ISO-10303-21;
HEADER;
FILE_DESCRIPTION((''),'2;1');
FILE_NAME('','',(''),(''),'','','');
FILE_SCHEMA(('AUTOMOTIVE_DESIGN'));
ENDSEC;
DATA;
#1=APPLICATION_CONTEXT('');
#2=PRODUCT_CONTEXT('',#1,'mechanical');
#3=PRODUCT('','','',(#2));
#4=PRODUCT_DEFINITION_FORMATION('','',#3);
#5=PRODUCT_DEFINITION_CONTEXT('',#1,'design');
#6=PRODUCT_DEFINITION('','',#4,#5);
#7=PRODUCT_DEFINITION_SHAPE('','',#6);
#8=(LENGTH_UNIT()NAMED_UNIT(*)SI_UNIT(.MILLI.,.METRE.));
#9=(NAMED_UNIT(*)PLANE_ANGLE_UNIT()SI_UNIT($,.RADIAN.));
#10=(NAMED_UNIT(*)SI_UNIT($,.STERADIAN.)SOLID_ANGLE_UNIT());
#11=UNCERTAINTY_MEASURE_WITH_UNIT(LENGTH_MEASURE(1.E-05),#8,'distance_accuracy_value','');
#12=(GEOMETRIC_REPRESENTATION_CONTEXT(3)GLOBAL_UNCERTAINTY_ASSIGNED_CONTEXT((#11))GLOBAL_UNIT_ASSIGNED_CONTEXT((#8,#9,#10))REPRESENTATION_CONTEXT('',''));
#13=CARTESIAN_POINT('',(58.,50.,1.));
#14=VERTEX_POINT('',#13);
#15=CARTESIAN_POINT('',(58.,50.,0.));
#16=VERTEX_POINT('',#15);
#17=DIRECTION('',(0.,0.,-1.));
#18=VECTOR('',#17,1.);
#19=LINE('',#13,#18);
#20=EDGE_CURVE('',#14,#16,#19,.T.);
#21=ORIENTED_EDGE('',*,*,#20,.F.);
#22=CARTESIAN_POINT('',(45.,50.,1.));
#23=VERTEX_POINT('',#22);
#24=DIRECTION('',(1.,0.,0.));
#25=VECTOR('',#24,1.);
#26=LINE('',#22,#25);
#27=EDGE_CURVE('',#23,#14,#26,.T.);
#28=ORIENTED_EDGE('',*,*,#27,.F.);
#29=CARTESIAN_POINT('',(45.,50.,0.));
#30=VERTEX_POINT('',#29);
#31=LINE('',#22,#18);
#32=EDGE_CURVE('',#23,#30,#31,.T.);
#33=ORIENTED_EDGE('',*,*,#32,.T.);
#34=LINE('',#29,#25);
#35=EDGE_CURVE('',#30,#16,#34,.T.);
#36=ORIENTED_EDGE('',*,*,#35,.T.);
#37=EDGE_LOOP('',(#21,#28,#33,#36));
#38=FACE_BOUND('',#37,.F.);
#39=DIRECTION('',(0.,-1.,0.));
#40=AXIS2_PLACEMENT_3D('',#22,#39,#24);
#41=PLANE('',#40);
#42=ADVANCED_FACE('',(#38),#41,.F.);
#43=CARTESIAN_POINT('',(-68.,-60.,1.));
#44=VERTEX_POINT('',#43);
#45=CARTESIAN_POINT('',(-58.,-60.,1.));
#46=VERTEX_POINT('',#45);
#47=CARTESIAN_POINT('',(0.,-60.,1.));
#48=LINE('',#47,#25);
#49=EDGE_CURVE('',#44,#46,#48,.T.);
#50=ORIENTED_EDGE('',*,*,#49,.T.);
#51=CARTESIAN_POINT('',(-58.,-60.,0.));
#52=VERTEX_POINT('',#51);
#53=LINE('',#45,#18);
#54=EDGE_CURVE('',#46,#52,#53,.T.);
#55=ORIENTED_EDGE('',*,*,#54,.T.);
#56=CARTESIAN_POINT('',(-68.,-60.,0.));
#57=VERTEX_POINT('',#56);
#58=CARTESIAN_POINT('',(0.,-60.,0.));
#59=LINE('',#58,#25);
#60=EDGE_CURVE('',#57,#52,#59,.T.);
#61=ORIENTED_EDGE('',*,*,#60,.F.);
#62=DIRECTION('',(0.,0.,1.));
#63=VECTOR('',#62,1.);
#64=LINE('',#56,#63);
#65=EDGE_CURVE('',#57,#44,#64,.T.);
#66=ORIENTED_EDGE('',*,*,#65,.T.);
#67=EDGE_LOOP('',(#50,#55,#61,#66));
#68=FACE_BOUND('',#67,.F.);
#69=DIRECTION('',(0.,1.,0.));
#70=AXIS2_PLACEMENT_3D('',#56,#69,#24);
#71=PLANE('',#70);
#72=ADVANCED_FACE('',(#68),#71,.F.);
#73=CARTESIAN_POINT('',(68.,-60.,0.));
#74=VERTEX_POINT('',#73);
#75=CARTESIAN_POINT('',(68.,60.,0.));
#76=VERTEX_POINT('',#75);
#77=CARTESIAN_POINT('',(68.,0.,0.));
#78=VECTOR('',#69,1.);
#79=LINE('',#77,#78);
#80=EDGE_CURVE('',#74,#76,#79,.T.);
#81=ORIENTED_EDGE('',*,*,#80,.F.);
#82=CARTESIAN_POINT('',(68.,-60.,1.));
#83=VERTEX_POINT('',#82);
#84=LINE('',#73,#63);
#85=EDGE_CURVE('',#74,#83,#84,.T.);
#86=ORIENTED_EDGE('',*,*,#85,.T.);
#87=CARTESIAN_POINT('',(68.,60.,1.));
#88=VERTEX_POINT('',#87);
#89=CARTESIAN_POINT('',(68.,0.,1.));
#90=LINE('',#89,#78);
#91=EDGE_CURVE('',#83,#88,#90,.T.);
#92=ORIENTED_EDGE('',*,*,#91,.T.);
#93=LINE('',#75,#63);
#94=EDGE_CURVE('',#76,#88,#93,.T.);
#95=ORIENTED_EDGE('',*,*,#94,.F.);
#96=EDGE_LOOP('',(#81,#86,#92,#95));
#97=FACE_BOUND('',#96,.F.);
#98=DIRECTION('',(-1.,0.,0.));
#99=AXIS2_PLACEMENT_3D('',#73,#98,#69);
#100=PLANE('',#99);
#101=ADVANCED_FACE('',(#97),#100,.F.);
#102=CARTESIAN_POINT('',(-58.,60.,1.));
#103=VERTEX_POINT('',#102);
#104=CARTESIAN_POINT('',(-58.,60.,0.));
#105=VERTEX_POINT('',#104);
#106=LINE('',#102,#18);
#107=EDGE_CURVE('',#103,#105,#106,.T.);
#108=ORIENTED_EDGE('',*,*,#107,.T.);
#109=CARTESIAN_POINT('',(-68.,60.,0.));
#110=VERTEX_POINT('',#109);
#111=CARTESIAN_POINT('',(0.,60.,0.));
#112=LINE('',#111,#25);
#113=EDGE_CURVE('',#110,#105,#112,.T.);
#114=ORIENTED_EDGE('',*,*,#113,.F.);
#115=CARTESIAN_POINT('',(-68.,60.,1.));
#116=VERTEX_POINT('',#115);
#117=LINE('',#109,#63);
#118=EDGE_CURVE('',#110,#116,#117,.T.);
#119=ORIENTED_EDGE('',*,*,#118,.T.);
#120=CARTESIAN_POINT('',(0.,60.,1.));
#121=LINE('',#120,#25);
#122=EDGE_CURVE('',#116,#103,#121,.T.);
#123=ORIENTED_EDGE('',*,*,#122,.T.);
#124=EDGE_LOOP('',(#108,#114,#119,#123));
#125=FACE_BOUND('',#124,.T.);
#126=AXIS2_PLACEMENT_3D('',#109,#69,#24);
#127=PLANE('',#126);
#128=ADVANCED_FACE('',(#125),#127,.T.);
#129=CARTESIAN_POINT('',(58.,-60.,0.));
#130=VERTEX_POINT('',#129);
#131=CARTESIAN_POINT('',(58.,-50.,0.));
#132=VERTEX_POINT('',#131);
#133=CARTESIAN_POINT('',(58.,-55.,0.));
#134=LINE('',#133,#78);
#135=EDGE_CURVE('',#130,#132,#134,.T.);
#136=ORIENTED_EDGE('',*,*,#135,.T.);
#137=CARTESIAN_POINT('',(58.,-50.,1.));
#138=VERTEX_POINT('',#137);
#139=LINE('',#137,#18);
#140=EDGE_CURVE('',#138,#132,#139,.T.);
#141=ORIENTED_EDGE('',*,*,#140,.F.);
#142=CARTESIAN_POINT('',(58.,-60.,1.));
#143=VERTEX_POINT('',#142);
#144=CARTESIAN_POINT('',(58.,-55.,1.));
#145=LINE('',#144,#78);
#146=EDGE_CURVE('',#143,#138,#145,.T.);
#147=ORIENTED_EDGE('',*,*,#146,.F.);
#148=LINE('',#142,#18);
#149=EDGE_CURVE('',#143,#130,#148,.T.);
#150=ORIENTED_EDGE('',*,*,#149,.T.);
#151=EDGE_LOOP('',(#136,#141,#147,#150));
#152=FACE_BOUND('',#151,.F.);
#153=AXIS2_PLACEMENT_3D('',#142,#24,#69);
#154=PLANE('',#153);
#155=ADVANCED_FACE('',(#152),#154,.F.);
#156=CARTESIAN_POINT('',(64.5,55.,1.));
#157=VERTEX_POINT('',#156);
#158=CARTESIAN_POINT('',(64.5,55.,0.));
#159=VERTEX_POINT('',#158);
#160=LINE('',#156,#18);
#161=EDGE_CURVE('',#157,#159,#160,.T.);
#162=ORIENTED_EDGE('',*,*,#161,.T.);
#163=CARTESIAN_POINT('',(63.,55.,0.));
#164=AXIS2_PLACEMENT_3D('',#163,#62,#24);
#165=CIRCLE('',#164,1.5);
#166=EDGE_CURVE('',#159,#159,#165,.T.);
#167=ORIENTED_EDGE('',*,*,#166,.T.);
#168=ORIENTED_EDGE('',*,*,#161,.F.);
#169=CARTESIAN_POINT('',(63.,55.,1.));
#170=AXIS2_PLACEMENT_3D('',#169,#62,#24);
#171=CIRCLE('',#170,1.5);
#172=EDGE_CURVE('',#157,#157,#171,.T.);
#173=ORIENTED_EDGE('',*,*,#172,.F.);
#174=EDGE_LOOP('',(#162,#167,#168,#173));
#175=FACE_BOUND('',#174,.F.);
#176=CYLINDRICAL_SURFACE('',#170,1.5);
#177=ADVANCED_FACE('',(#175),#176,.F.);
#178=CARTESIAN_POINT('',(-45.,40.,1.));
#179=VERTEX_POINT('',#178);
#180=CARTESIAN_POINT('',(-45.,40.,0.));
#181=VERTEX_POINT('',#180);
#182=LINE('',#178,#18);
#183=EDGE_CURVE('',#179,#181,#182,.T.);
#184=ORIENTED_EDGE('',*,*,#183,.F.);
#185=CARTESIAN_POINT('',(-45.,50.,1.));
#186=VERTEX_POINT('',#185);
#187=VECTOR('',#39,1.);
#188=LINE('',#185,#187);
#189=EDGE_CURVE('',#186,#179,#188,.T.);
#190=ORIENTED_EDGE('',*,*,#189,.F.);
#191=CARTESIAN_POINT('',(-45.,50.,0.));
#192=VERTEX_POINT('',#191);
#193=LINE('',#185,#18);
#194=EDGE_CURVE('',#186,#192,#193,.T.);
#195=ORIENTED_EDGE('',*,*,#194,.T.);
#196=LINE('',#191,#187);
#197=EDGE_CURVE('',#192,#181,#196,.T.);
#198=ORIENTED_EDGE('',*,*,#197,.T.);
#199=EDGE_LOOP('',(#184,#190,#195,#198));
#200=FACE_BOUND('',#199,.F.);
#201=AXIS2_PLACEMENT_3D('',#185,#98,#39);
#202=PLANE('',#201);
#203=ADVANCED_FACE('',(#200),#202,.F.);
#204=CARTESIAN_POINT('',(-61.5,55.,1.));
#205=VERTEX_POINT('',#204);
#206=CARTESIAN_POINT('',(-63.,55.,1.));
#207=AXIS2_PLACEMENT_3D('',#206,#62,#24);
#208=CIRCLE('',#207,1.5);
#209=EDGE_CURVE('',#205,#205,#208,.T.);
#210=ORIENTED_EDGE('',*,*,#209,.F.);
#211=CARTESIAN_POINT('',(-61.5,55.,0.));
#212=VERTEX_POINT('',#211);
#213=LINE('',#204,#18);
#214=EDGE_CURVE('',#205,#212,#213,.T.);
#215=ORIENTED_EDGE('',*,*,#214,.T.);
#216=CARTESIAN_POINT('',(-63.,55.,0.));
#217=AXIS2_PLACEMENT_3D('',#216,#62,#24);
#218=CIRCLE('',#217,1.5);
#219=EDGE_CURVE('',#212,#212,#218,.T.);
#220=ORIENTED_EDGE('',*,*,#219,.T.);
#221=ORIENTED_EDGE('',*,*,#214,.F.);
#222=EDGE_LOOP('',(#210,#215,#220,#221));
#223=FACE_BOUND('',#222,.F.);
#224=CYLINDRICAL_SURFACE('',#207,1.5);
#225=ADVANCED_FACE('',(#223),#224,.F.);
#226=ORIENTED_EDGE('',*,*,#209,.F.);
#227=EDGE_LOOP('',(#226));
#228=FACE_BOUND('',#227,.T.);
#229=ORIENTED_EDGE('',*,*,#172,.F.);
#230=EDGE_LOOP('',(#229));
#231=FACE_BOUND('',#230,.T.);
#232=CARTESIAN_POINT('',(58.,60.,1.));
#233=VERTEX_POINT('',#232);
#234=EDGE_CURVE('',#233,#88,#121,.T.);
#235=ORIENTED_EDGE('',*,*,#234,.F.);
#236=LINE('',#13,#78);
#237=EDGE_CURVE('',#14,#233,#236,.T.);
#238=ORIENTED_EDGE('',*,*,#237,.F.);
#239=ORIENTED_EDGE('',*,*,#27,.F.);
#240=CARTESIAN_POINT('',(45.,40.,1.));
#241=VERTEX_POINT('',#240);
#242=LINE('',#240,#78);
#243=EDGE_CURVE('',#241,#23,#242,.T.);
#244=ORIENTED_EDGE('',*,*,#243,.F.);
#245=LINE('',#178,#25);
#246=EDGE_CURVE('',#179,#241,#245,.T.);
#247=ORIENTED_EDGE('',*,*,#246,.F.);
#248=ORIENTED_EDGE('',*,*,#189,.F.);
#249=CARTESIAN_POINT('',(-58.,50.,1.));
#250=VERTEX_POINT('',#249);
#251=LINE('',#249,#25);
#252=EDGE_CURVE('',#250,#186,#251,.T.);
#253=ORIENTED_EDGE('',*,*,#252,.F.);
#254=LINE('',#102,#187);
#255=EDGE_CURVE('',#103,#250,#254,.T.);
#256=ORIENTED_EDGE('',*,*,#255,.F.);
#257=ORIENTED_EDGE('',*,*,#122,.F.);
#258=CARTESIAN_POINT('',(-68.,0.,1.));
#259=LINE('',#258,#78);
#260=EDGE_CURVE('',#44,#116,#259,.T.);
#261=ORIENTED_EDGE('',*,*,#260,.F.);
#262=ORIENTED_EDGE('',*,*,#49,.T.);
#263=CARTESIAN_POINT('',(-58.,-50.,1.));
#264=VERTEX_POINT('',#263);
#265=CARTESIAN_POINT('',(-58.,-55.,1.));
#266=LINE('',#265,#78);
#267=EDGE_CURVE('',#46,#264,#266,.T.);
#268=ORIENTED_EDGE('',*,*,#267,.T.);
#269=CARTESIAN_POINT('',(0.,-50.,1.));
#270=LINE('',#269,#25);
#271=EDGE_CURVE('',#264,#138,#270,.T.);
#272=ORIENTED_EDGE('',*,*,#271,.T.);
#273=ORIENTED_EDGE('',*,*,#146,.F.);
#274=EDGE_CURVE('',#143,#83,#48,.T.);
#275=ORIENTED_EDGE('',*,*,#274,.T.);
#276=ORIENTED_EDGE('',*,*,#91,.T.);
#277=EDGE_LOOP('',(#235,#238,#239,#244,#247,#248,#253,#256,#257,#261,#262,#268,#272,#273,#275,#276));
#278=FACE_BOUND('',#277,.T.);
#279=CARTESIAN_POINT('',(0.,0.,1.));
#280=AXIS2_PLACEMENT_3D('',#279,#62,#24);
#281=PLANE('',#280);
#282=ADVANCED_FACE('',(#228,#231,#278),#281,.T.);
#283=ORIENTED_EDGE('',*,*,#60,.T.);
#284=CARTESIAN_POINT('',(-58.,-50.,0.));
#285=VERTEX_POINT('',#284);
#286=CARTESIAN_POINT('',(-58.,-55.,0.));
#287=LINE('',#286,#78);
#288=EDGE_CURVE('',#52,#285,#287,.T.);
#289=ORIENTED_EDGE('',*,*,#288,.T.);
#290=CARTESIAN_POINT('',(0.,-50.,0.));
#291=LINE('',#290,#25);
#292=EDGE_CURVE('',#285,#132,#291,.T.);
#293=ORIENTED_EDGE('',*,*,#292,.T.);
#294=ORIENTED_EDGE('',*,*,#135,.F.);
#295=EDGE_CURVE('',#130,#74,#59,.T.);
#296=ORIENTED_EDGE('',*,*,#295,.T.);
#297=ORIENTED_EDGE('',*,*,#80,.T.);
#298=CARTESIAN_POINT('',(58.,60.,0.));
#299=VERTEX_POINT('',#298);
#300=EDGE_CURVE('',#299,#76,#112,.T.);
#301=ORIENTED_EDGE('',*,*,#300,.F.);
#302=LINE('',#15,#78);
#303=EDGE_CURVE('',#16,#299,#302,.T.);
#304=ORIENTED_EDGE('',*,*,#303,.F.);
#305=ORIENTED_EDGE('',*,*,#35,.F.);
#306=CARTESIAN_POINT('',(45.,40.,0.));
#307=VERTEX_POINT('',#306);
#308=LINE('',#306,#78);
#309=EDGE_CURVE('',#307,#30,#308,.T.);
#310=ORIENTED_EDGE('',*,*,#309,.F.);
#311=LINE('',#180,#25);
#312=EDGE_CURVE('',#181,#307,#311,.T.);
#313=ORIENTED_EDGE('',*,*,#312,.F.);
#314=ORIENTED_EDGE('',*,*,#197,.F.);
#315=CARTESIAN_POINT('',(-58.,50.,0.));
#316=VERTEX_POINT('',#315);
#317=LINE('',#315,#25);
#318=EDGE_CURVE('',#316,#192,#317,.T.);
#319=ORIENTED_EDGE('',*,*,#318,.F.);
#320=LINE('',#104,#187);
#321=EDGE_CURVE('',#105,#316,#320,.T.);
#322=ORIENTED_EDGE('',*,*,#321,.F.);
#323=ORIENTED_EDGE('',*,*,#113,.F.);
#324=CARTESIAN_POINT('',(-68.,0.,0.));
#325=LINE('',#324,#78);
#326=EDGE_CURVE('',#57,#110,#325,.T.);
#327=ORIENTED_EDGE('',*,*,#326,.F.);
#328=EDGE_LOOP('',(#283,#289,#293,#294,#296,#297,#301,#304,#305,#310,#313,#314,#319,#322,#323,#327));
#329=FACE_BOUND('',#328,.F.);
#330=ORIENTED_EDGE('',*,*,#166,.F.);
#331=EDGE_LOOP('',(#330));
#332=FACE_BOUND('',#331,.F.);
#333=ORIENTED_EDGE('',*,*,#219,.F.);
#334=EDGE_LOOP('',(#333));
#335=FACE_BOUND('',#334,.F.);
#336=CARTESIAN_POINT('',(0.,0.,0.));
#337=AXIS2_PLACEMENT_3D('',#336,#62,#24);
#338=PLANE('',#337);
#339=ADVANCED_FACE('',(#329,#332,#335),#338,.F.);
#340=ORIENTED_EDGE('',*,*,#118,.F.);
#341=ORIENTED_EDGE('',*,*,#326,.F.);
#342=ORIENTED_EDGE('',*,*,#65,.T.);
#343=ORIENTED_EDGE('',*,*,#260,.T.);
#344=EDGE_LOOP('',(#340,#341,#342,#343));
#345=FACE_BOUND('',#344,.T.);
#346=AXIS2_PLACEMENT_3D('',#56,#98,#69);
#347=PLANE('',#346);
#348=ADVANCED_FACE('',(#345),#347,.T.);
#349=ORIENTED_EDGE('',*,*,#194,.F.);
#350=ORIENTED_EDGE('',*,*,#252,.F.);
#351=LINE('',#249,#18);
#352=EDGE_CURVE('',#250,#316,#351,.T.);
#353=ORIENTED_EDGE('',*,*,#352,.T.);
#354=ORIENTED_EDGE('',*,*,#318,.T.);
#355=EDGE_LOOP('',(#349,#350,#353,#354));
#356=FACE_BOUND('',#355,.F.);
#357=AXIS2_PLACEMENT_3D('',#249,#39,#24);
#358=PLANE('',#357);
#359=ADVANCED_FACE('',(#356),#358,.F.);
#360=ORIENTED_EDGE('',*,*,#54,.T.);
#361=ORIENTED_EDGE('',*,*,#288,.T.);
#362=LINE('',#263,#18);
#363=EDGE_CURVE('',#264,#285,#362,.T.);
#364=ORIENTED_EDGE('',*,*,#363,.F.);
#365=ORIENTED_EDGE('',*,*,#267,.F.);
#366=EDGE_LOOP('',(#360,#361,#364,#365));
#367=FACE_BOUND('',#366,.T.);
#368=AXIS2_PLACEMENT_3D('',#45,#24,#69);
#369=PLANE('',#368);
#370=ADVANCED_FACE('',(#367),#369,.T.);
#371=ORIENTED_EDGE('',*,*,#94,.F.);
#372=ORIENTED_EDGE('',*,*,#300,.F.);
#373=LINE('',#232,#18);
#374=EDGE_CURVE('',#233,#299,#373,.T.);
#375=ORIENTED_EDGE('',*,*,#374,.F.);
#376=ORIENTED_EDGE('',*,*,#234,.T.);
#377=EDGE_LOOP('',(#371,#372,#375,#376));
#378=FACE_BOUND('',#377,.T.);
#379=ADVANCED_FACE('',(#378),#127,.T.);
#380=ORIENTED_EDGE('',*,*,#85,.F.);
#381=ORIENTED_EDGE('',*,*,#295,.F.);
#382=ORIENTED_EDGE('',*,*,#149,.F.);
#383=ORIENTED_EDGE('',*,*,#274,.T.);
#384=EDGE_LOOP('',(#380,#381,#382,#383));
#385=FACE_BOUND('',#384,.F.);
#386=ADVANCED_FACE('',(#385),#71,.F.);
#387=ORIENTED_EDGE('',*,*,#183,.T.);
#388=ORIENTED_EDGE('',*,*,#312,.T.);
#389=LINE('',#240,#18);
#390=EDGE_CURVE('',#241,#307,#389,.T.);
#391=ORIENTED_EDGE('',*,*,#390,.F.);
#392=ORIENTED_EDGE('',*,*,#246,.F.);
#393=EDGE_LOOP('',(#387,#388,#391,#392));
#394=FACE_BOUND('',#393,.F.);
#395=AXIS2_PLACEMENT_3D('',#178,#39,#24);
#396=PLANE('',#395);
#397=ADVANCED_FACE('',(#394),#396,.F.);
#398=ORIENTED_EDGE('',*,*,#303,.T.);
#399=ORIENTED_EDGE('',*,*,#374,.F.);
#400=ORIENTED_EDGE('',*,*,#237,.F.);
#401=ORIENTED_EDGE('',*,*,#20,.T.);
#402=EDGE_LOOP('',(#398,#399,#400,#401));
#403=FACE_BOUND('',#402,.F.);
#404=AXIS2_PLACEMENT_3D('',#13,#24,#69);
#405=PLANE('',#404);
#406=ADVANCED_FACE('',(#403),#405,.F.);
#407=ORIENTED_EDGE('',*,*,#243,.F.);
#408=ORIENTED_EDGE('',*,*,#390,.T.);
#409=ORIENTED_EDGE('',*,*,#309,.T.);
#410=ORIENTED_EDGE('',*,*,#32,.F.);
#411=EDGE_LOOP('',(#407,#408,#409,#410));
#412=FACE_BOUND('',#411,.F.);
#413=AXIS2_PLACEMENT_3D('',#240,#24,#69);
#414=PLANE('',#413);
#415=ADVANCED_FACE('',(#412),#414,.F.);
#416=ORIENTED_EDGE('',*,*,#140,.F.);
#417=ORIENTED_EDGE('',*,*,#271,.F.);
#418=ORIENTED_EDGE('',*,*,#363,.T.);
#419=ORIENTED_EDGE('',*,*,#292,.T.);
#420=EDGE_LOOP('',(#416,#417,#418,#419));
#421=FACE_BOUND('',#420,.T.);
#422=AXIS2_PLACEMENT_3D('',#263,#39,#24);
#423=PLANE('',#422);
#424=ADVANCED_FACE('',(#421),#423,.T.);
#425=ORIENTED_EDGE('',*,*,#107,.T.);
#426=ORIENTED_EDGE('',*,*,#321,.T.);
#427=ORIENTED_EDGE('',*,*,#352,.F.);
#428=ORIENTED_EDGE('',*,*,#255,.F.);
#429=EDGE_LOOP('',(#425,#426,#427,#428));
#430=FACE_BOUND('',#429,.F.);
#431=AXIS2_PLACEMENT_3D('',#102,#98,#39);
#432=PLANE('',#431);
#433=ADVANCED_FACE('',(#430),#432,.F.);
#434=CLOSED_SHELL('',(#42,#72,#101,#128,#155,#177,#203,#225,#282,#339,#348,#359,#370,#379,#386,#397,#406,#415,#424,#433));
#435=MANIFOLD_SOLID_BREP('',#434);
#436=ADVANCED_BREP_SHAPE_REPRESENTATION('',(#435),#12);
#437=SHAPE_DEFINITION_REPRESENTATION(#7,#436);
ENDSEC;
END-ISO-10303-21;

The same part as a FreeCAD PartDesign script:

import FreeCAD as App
import Part
import Sketcher
from FreeCAD import Vector

doc = App.newDocument("Part")
body = doc.addObject("PartDesign::Body", "Body")

sketch1 = body.newObject("Sketcher::SketchObject", "Sketch")
sketch1.AttachmentSupport = (doc.getObject("XY_Plane"), [""])
sketch1.MapMode = "FlatFace"
sketch1.addGeometry([
    Part.LineSegment(Vector(-68, 60, 0), Vector(-68, -60, 0)),
    Part.LineSegment(Vector(-68, -60, 0), Vector(68, -60, 0)),
    Part.LineSegment(Vector(68, -60, 0), Vector(68, 60, 0)),
    Part.LineSegment(Vector(68, 60, 0), Vector(-68, 60, 0)),
], False)
sketch1.addConstraint([
    Sketcher.Constraint("Coincident", 0, 2, 1, 1),
    Sketcher.Constraint("Coincident", 1, 2, 2, 1),
    Sketcher.Constraint("Coincident", 2, 2, 3, 1),
    Sketcher.Constraint("Coincident", 3, 2, 0, 1),
    Sketcher.Constraint("Vertical", 0),
    Sketcher.Constraint("Horizontal", 1),
    Sketcher.Constraint("Vertical", 2),
    Sketcher.Constraint("Horizontal", 3),
    Sketcher.Constraint("Symmetric", 0, 2, 2, 2, -1, 1),
    Sketcher.Constraint("DistanceX", 1, 1, 1, 2, 136.0),
    Sketcher.Constraint("DistanceY", 0, 2, 0, 1, 120.0),
])
pad1 = body.newObject("PartDesign::Pad", "Pad")
pad1.Profile = sketch1
pad1.Length = 1

sketch2 = body.newObject("Sketcher::SketchObject", "Sketch001")
sketch2.AttachmentSupport = (doc.getObject("XY_Plane"), [""])
sketch2.MapMode = "FlatFace"
sketch2.AttachmentOffset = App.Placement(Vector(0, 0, 1), App.Rotation())
sketch2.addGeometry([
    Part.LineSegment(Vector(58, 60, 0), Vector(-58, 60, 0)),
    Part.LineSegment(Vector(-58, 60, 0), Vector(-58, 50, 0)),
    Part.LineSegment(Vector(-58, 50, 0), Vector(-45, 50, 0)),
    Part.LineSegment(Vector(-45, 50, 0), Vector(-45, 40, 0)),
    Part.LineSegment(Vector(-45, 40, 0), Vector(45, 40, 0)),
    Part.LineSegment(Vector(45, 40, 0), Vector(45, 50, 0)),
    Part.LineSegment(Vector(45, 50, 0), Vector(58, 50, 0)),
    Part.LineSegment(Vector(58, 50, 0), Vector(58, 60, 0)),
    Part.LineSegment(Vector(-58, -50, 0), Vector(-58, -60, 0)),
    Part.LineSegment(Vector(-58, -60, 0), Vector(58, -60, 0)),
    Part.LineSegment(Vector(58, -60, 0), Vector(58, -50, 0)),
    Part.LineSegment(Vector(58, -50, 0), Vector(-58, -50, 0)),
], False)
sketch2.addConstraint([
    Sketcher.Constraint("Coincident", 0, 2, 1, 1),
    Sketcher.Constraint("Coincident", 1, 2, 2, 1),
    Sketcher.Constraint("Coincident", 2, 2, 3, 1),
    Sketcher.Constraint("Coincident", 3, 2, 4, 1),
    Sketcher.Constraint("Coincident", 4, 2, 5, 1),
    Sketcher.Constraint("Coincident", 5, 2, 6, 1),
    Sketcher.Constraint("Coincident", 6, 2, 7, 1),
    Sketcher.Constraint("Coincident", 7, 2, 0, 1),
    Sketcher.Constraint("Coincident", 8, 2, 9, 1),
    Sketcher.Constraint("Coincident", 9, 2, 10, 1),
    Sketcher.Constraint("Coincident", 10, 2, 11, 1),
    Sketcher.Constraint("Coincident", 11, 2, 8, 1),
    Sketcher.Constraint("Horizontal", 0),
    Sketcher.Constraint("Vertical", 1),
    Sketcher.Constraint("Horizontal", 2),
    Sketcher.Constraint("Vertical", 3),
    Sketcher.Constraint("Horizontal", 4),
    Sketcher.Constraint("Vertical", 5),
    Sketcher.Constraint("Horizontal", 6),
    Sketcher.Constraint("Vertical", 7),
    Sketcher.Constraint("Vertical", 8),
    Sketcher.Constraint("Horizontal", 9),
    Sketcher.Constraint("Vertical", 10),
    Sketcher.Constraint("Horizontal", 11),
    Sketcher.Constraint("Symmetric", 7, 2, 8, 2, -1, 1),
    Sketcher.Constraint("Symmetric", 1, 2, 10, 2, -1, 1),
    Sketcher.Constraint("Symmetric", 2, 2, 5, 2, -2),
    Sketcher.Constraint("Vertical", 1, 2, 8, 2),
    Sketcher.Constraint("Equal", 1, 3),
    Sketcher.Constraint("DistanceX", 0, 2, 0, 1, 116.0),
    Sketcher.Constraint("DistanceX", 2, 1, 2, 2, 13.0),
    Sketcher.Constraint("DistanceY", 1, 2, 1, 1, 10.0),
    Sketcher.Constraint("DistanceY", -1, 1, 0, 2, 60.0),
])
pocket1 = body.newObject("PartDesign::Pocket", "Pocket")
pocket1.Profile = sketch2
pocket1.Type = "ThroughAll"

sketch3 = body.newObject("Sketcher::SketchObject", "Sketch002")
sketch3.AttachmentSupport = (doc.getObject("XY_Plane"), [""])
sketch3.MapMode = "FlatFace"
sketch3.AttachmentOffset = App.Placement(Vector(0, 0, 1), App.Rotation())
sketch3.addGeometry([
    Part.Circle(Vector(-63, 55, 0), Vector(0, 0, 1), 1.5),
    Part.Circle(Vector(63, 55, 0), Vector(0, 0, 1), 1.5),
], False)
sketch3.addConstraint([
    Sketcher.Constraint("Equal", 0, 1),
    Sketcher.Constraint("Symmetric", 0, 3, 1, 3, -2),
    Sketcher.Constraint("Diameter", 0, 3.0),
    Sketcher.Constraint("DistanceX", 0, 3, -1, 1, 63.0),
    Sketcher.Constraint("DistanceY", -1, 1, 0, 3, 55.0),
])
pocket2 = body.newObject("PartDesign::Pocket", "Pocket001")
pocket2.Profile = sketch3
pocket2.Type = "ThroughAll"

doc.recompute()
